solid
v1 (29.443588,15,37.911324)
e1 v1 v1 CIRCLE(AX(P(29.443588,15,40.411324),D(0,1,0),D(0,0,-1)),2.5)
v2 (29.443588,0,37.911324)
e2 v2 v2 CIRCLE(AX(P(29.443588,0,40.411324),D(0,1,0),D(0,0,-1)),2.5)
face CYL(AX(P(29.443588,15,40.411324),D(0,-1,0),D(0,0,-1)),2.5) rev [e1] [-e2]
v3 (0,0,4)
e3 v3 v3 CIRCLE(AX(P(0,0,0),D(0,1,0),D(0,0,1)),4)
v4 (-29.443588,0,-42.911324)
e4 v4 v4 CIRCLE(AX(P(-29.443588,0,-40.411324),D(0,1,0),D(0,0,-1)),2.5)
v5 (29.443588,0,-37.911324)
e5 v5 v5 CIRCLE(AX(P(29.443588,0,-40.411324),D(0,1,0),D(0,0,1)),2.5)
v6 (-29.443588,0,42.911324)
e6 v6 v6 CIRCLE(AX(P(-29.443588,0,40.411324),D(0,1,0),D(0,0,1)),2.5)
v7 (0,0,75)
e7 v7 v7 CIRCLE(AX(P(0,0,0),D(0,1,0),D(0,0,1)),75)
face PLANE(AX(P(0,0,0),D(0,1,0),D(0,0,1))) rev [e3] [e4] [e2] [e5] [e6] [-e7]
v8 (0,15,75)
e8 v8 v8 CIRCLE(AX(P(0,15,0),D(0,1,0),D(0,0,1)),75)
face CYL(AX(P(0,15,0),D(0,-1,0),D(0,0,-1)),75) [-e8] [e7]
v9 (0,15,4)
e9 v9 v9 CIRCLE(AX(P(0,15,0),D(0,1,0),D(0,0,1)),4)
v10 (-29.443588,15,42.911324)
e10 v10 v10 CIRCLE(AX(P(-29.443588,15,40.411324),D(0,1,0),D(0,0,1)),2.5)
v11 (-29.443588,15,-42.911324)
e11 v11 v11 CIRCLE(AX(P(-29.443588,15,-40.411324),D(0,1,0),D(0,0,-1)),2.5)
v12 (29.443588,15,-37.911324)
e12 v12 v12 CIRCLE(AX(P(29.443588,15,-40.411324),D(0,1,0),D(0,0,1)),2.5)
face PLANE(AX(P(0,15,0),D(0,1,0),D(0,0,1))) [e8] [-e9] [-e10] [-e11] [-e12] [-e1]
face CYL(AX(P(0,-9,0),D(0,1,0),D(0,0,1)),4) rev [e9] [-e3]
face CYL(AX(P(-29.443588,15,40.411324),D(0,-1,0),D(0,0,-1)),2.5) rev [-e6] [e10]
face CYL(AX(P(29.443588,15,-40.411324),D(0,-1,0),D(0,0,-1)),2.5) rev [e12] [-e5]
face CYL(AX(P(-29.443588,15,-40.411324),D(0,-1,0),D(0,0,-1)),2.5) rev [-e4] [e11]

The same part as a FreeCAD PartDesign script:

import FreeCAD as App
import Part
import Sketcher
from FreeCAD import Vector

doc = App.newDocument("Part")
params = doc.addObject("Spreadsheet::Sheet", "Params")
for row, (alias, value) in enumerate([
    ("sketch1_diameter", "150 mm"),
    ("sketch1_diameter2", "5 mm"),
    ("pad1_length", "15 mm"),
    ("sketch2_diameter", "8 mm"),
    ("pocket1_length", "24 mm"),
], start=1):
    params.set(f"A{row}", alias)
    params.set(f"B{row}", "=" + value)
    params.setAlias(f"B{row}", alias)

body = doc.addObject("PartDesign::Body", "Body")

# Sketch on XZ plane
sketch1 = body.newObject("Sketcher::SketchObject", "Sketch")
sketch1.AttachmentSupport = (doc.getObject("XZ_Plane"), [""])
sketch1.MapMode = "FlatFace"
sketch1.addGeometry([
    Part.Circle(Vector(0, 0, 0), Vector(0, 0, 1), 75),  # 0
    Part.Circle(Vector(-29.443588, -40.411324, 0), Vector(0, 0, 1), 2.5),  # 1
    Part.Circle(Vector(-29.443588, 40.411324, 0), Vector(0, 0, 1), 2.5),  # 2
    Part.Circle(Vector(29.443588, -40.411324, 0), Vector(0, 0, 1), 2.5),  # 3
    Part.Circle(Vector(29.443588, 40.411324, 0), Vector(0, 0, 1), 2.5),  # 4
], False)
sketch1.addConstraint([
    Sketcher.Constraint("Coincident", 0, 3, -1, 1),
    Sketcher.Constraint("Equal", 1, 2),
    Sketcher.Constraint("Equal", 2, 3),
    Sketcher.Constraint("Equal", 3, 4),
    Sketcher.Constraint("Symmetric", 2, 3, 3, 3, -1, 1),
    Sketcher.Constraint("Symmetric", 1, 3, 4, 3, -1, 1),
    Sketcher.Constraint("Symmetric", 1, 3, 3, 3, -2),
    Sketcher.Constraint("Diameter", 0, 150.0),
    Sketcher.Constraint("Diameter", 1, 5.0),
    Sketcher.Constraint("DistanceY", 1, 3, 2, 3, 80.822649),
    Sketcher.Constraint("DistanceX", 1, 3, -1, 1, 29.443588),
])
sketch1.setExpression("Constraints[7]", "Params.sketch1_diameter")
sketch1.setExpression("Constraints[8]", "Params.sketch1_diameter2")
pad1 = body.newObject("PartDesign::Pad", "Pad")
pad1.Profile = sketch1
pad1.setExpression("Length", "Params.pad1_length")
pad1.Reversed = True

# Sketch on XZ plane
sketch2 = body.newObject("Sketcher::SketchObject", "Sketch001")
sketch2.AttachmentSupport = (doc.getObject("XZ_Plane"), [""])
sketch2.MapMode = "FlatFace"
sketch2.AttachmentOffset = App.Placement(Vector(0, 0, -15), App.Rotation())
sketch2.addGeometry(Part.Circle(Vector(0, 0, 0), Vector(0, 0, 1), 4), False)
sketch2.addConstraint([
    Sketcher.Constraint("Coincident", 0, 3, -1, 1),
    Sketcher.Constraint("Diameter", 0, 8.0),
])
sketch2.setExpression("Constraints[1]", "Params.sketch2_diameter")
pocket1 = body.newObject("PartDesign::Pocket", "Pocket")
pocket1.Profile = sketch2
pocket1.setExpression("Length", "Params.pocket1_length")
pocket1.Reversed = True

doc.recompute()
